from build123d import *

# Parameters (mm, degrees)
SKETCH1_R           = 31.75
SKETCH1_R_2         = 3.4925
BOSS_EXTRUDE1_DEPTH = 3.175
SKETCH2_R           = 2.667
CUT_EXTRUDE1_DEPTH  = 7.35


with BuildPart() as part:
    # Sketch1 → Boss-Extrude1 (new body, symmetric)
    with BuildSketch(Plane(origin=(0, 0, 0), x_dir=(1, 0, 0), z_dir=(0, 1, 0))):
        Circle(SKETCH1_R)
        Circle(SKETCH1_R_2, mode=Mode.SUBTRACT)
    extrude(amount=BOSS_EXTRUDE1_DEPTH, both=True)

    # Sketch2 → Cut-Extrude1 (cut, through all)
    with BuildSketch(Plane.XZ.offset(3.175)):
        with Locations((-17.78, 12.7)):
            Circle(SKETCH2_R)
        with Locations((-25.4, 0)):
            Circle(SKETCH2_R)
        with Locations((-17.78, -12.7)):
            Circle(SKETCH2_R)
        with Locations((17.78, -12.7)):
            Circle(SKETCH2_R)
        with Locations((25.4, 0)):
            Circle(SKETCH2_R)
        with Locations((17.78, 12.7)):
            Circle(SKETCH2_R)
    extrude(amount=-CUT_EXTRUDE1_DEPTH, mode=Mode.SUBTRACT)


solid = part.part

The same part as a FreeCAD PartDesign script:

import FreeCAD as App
import Part
import Sketcher
Q = App.Units.Quantity

doc = App.newDocument("Part")
body = doc.addObject("PartDesign::Body", "Body")

sketch1 = body.newObject("Sketcher::SketchObject", "Sketch")
sketch1.AttachmentSupport = (doc.getObject("XZ_Plane"), [""])
sketch1.MapMode = "FlatFace"
sketch1.addGeometry(Part.Circle(App.Vector(0, 0, 0), App.Vector(0, 0, 1), 31.8), False)
sketch1.addGeometry(Part.Circle(App.Vector(0, 0, 0), App.Vector(0, 0, 1), 3.5), False)
sketch1.addConstraint(Sketcher.Constraint("Coincident", 0, 3, -1, 1))
sketch1.addConstraint(Sketcher.Constraint("Coincident", 1, 3, -1, 1))
sketch1.addConstraint(Sketcher.Constraint("Diameter", 0, Q("2.5 in")))
sketch1.addConstraint(Sketcher.Constraint("Diameter", 1, Q("0.275 in")))
pad1 = body.newObject("PartDesign::Pad", "Pad")
pad1.Profile = sketch1
pad1.Length = Q("0.25 in")
pad1.Midplane = True

sketch2 = body.newObject("Sketcher::SketchObject", "Sketch001")
sketch2.AttachmentSupport = (doc.getObject("XZ_Plane"), [""])
sketch2.MapMode = "FlatFace"
sketch2.AttachmentOffset = App.Placement(App.Vector(0, 0, 0.125 * 25.4), App.Rotation())
sketch2.addGeometry(Part.Circle(App.Vector(-17.8, 12.7, 0), App.Vector(0, 0, 1), 2.7), False)
sketch2.addGeometry(Part.Circle(App.Vector(-25.4, 0, 0), App.Vector(0, 0, 1), 2.7), False)
sketch2.addGeometry(Part.Circle(App.Vector(-17.8, -12.7, 0), App.Vector(0, 0, 1), 2.7), False)
sketch2.addGeometry(Part.Circle(App.Vector(17.8, -12.7, 0), App.Vector(0, 0, 1), 2.7), False)
sketch2.addGeometry(Part.Circle(App.Vector(25.4, 0, 0), App.Vector(0, 0, 1), 2.7), False)
sketch2.addGeometry(Part.Circle(App.Vector(17.8, 12.7, 0), App.Vector(0, 0, 1), 2.7), False)
sketch2.addConstraint(Sketcher.Constraint("Equal", 0, 1))
sketch2.addConstraint(Sketcher.Constraint("Equal", 1, 2))
sketch2.addConstraint(Sketcher.Constraint("Equal", 2, 3))
sketch2.addConstraint(Sketcher.Constraint("Equal", 3, 4))
sketch2.addConstraint(Sketcher.Constraint("Equal", 4, 5))
sketch2.addConstraint(Sketcher.Constraint("Symmetric", 0, 3, 3, 3, -1, 1))
sketch2.addConstraint(Sketcher.Constraint("Symmetric", 1, 3, 4, 3, -1, 1))
sketch2.addConstraint(Sketcher.Constraint("Symmetric", 2, 3, 5, 3, -1, 1))
sketch2.addConstraint(Sketcher.Constraint("Symmetric", 2, 3, 3, 3, -2))
sketch2.addConstraint(Sketcher.Constraint("PointOnObject", 1, 3, -1))
sketch2.addConstraint(Sketcher.Constraint("Diameter", 0, Q("0.21 in")))
sketch2.addConstraint(Sketcher.Constraint("DistanceX", 1, 3, -1, 1, Q("1 in")))
sketch2.addConstraint(Sketcher.Constraint("DistanceY", 2, 3, 0, 3, Q("1 in")))
sketch2.addConstraint(Sketcher.Constraint("DistanceX", 0, 3, -1, 1, Q("0.7 in")))
pocket1 = body.newObject("PartDesign::Pocket", "Pocket")
pocket1.Profile = sketch2
pocket1.Type = "ThroughAll"

doc.recompute()
